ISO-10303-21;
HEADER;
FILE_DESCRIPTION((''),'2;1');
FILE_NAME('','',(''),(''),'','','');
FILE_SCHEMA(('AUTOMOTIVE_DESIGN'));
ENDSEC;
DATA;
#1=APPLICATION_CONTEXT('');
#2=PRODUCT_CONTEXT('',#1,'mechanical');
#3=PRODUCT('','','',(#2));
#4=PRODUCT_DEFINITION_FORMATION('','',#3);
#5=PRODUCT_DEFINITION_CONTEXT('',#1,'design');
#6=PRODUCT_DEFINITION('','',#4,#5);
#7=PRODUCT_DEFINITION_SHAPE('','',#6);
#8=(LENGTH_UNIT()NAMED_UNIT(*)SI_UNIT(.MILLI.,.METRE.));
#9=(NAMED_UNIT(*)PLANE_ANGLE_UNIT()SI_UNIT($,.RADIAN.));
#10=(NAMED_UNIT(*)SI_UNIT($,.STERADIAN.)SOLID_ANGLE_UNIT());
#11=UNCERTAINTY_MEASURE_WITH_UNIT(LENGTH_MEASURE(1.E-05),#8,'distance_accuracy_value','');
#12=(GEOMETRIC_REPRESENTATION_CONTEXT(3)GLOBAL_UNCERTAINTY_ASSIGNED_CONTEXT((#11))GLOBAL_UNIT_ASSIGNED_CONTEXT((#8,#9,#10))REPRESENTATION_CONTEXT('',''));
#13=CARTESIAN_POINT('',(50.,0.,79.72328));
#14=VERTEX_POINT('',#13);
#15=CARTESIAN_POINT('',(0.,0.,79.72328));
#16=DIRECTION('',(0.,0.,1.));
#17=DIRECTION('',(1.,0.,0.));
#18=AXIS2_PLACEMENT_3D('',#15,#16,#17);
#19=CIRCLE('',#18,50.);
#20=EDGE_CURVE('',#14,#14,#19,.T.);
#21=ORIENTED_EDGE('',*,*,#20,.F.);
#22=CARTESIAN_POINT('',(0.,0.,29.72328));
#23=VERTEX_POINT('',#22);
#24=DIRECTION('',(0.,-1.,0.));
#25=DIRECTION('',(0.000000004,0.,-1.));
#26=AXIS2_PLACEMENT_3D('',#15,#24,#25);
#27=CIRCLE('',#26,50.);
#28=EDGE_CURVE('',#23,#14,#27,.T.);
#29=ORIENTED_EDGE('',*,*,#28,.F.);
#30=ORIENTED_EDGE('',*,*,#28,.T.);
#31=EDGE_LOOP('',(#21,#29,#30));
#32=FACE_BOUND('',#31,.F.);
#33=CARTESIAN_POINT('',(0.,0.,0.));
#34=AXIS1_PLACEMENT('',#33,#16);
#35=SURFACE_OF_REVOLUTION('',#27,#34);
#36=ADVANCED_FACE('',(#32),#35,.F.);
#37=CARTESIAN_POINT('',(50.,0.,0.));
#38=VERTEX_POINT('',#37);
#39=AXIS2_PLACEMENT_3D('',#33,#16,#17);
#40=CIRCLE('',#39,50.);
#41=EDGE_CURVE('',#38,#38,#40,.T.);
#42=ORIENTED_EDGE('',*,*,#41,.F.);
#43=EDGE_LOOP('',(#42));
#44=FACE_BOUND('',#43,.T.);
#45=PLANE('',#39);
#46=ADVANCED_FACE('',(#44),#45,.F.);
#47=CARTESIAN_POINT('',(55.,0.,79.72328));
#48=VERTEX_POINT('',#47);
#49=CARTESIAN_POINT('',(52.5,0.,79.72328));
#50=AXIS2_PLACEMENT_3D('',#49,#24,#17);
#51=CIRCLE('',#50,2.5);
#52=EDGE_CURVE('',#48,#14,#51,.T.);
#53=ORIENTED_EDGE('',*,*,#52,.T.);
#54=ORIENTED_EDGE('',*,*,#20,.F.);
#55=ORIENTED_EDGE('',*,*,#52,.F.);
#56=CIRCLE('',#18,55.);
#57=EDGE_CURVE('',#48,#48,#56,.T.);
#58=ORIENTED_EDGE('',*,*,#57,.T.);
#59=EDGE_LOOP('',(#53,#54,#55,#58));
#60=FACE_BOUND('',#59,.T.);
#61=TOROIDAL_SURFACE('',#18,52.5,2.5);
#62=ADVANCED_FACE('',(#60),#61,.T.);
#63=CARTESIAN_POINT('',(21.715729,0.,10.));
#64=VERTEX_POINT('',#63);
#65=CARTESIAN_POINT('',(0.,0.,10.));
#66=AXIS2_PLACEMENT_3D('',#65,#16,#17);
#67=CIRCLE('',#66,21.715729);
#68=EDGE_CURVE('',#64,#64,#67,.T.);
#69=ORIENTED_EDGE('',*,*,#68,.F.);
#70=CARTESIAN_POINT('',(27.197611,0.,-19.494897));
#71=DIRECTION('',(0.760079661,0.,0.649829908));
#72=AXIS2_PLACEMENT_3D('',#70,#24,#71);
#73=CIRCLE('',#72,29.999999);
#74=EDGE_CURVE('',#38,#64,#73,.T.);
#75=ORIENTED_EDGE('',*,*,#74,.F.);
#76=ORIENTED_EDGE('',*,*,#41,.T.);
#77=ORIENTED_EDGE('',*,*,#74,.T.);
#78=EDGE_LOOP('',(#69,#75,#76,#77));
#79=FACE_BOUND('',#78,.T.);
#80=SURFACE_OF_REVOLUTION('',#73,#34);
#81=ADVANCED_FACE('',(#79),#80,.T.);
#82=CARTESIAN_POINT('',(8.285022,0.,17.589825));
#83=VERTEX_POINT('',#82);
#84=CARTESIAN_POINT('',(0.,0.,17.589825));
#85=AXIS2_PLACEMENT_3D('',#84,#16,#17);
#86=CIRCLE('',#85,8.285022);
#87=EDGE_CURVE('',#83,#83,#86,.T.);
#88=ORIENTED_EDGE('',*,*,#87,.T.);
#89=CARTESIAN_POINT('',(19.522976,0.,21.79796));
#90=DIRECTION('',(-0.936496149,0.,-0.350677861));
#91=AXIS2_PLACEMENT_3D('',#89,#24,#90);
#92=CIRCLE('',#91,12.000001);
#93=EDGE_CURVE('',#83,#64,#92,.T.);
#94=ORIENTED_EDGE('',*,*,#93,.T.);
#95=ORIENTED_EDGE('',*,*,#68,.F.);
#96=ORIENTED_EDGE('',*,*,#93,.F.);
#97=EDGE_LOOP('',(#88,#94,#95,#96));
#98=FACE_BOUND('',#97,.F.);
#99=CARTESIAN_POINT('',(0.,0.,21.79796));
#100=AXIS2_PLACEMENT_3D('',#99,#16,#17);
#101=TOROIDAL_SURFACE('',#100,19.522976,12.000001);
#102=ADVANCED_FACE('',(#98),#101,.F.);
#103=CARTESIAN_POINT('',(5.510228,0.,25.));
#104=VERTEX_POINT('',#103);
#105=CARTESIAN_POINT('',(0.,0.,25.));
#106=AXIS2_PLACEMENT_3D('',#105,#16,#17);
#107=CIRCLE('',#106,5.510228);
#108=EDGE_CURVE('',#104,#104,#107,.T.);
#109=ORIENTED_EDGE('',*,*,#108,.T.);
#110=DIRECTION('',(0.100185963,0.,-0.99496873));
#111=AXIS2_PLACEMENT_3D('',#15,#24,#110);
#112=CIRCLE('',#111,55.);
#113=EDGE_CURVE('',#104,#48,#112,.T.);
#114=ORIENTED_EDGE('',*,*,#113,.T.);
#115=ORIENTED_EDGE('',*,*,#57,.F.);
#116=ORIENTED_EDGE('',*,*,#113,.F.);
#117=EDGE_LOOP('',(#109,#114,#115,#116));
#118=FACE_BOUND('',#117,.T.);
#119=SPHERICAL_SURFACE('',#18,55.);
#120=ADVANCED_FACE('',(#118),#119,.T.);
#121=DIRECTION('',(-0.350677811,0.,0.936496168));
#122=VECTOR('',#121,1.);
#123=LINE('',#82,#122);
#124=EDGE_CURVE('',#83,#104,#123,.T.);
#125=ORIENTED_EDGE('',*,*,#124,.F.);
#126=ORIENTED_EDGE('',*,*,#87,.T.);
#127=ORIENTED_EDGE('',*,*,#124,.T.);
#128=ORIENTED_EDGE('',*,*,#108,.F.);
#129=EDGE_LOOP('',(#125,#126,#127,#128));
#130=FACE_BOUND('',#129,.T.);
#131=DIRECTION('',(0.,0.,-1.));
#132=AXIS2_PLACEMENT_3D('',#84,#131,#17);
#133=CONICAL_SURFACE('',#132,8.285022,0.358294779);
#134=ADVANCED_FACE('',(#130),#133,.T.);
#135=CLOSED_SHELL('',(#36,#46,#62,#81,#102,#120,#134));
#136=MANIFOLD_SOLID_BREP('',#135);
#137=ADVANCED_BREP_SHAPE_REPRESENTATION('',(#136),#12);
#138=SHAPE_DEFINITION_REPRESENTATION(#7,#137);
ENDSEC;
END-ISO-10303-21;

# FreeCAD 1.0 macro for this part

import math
import FreeCAD as App
import Part
import Sketcher

V = App.Vector

doc = App.newDocument("Part")
body = doc.addObject("PartDesign::Body", "Body")

# Sketch on XZ plane
sketch1 = body.newObject("Sketcher::SketchObject", "Sketch")
sketch1.AttachmentSupport = (doc.getObject("XZ_Plane"), [""])
sketch1.MapMode = "FlatFace"
sketch1.addGeometry([
    Part.LineSegment(V(0, 0, 0), V(50, 0, 0)),  # 0
    Part.ArcOfCircle(Part.Circle(V(27.2, -19.5, 0), V(0, 0, 1), 30), math.radians(41), math.radians(101)),  # 1
    Part.ArcOfCircle(Part.Circle(V(19.5, 21.8, 0), V(0, 0, 1), 12), math.radians(-159), math.radians(-79)),  # 2
    Part.LineSegment(V(8.3, 17.6, 0), V(5.5, 25, 0)),  # 3
    Part.ArcOfCircle(Part.Circle(V(0, 79.7, 0), V(0, 0, 1), 55), math.radians(-84), math.radians(0)),  # 4
    Part.ArcOfCircle(Part.Circle(V(52.5, 79.7, 0), V(0, 0, 1), 2.5), math.radians(0), math.radians(180)),  # 5
    Part.ArcOfCircle(Part.Circle(V(0, 79.7, 0), V(0, 0, 1), 50), math.radians(-90), math.radians(0)),  # 6
    Part.LineSegment(V(0, 29.7, 0), V(0, 0, 0)),  # 7
], False)
sketch1.addConstraint([
    Sketcher.Constraint("Coincident", 0, 2, 1, 1),
    Sketcher.Constraint("Tangent", 1, 2, 2, 2),
    Sketcher.Constraint("Tangent", 2, 1, 3, 1),
    Sketcher.Constraint("Coincident", 3, 2, 4, 1),
    Sketcher.Constraint("Tangent", 4, 2, 5, 1),
    Sketcher.Constraint("Tangent", 5, 2, 6, 2),
    Sketcher.Constraint("Coincident", 6, 1, 7, 1),
    Sketcher.Constraint("Coincident", 7, 2, 0, 1),
    Sketcher.Constraint("Horizontal", 0),
    Sketcher.Constraint("Vertical", 7),
    Sketcher.Constraint("Coincident", 7, 2, -1, 1),
    Sketcher.Constraint("Coincident", 6, 3, 4, 3),
    Sketcher.Constraint("PointOnObject", 4, 3, -2),
    Sketcher.Constraint("Horizontal", 4, 3, 5, 3),
    Sketcher.Constraint("Vertical", 0, 2, 5, 2),
    Sketcher.Constraint("Radius", 1, 29.999999),
    Sketcher.Constraint("Radius", 2, 12.000001),
    Sketcher.Constraint("Radius", 4, 55.0),
    Sketcher.Constraint("Radius", 6, 50.0),
    Sketcher.Constraint("DistanceY", -1, 1, 1, 2, 10.0),
    Sketcher.Constraint("DistanceY", -1, 1, 3, 2, 25.0),
    Sketcher.Constraint("DistanceY", 7, 2, 7, 1, 29.72328),
    Sketcher.Constraint("DistanceX", 3, 2, 1, 2, 16.205501),
])
revolution = body.newObject("PartDesign::Revolution", "Revolution")
revolution.Profile = sketch1
revolution.ReferenceAxis = (sketch1, ["V_Axis"])
revolution.Angle = 360

doc.recompute()
